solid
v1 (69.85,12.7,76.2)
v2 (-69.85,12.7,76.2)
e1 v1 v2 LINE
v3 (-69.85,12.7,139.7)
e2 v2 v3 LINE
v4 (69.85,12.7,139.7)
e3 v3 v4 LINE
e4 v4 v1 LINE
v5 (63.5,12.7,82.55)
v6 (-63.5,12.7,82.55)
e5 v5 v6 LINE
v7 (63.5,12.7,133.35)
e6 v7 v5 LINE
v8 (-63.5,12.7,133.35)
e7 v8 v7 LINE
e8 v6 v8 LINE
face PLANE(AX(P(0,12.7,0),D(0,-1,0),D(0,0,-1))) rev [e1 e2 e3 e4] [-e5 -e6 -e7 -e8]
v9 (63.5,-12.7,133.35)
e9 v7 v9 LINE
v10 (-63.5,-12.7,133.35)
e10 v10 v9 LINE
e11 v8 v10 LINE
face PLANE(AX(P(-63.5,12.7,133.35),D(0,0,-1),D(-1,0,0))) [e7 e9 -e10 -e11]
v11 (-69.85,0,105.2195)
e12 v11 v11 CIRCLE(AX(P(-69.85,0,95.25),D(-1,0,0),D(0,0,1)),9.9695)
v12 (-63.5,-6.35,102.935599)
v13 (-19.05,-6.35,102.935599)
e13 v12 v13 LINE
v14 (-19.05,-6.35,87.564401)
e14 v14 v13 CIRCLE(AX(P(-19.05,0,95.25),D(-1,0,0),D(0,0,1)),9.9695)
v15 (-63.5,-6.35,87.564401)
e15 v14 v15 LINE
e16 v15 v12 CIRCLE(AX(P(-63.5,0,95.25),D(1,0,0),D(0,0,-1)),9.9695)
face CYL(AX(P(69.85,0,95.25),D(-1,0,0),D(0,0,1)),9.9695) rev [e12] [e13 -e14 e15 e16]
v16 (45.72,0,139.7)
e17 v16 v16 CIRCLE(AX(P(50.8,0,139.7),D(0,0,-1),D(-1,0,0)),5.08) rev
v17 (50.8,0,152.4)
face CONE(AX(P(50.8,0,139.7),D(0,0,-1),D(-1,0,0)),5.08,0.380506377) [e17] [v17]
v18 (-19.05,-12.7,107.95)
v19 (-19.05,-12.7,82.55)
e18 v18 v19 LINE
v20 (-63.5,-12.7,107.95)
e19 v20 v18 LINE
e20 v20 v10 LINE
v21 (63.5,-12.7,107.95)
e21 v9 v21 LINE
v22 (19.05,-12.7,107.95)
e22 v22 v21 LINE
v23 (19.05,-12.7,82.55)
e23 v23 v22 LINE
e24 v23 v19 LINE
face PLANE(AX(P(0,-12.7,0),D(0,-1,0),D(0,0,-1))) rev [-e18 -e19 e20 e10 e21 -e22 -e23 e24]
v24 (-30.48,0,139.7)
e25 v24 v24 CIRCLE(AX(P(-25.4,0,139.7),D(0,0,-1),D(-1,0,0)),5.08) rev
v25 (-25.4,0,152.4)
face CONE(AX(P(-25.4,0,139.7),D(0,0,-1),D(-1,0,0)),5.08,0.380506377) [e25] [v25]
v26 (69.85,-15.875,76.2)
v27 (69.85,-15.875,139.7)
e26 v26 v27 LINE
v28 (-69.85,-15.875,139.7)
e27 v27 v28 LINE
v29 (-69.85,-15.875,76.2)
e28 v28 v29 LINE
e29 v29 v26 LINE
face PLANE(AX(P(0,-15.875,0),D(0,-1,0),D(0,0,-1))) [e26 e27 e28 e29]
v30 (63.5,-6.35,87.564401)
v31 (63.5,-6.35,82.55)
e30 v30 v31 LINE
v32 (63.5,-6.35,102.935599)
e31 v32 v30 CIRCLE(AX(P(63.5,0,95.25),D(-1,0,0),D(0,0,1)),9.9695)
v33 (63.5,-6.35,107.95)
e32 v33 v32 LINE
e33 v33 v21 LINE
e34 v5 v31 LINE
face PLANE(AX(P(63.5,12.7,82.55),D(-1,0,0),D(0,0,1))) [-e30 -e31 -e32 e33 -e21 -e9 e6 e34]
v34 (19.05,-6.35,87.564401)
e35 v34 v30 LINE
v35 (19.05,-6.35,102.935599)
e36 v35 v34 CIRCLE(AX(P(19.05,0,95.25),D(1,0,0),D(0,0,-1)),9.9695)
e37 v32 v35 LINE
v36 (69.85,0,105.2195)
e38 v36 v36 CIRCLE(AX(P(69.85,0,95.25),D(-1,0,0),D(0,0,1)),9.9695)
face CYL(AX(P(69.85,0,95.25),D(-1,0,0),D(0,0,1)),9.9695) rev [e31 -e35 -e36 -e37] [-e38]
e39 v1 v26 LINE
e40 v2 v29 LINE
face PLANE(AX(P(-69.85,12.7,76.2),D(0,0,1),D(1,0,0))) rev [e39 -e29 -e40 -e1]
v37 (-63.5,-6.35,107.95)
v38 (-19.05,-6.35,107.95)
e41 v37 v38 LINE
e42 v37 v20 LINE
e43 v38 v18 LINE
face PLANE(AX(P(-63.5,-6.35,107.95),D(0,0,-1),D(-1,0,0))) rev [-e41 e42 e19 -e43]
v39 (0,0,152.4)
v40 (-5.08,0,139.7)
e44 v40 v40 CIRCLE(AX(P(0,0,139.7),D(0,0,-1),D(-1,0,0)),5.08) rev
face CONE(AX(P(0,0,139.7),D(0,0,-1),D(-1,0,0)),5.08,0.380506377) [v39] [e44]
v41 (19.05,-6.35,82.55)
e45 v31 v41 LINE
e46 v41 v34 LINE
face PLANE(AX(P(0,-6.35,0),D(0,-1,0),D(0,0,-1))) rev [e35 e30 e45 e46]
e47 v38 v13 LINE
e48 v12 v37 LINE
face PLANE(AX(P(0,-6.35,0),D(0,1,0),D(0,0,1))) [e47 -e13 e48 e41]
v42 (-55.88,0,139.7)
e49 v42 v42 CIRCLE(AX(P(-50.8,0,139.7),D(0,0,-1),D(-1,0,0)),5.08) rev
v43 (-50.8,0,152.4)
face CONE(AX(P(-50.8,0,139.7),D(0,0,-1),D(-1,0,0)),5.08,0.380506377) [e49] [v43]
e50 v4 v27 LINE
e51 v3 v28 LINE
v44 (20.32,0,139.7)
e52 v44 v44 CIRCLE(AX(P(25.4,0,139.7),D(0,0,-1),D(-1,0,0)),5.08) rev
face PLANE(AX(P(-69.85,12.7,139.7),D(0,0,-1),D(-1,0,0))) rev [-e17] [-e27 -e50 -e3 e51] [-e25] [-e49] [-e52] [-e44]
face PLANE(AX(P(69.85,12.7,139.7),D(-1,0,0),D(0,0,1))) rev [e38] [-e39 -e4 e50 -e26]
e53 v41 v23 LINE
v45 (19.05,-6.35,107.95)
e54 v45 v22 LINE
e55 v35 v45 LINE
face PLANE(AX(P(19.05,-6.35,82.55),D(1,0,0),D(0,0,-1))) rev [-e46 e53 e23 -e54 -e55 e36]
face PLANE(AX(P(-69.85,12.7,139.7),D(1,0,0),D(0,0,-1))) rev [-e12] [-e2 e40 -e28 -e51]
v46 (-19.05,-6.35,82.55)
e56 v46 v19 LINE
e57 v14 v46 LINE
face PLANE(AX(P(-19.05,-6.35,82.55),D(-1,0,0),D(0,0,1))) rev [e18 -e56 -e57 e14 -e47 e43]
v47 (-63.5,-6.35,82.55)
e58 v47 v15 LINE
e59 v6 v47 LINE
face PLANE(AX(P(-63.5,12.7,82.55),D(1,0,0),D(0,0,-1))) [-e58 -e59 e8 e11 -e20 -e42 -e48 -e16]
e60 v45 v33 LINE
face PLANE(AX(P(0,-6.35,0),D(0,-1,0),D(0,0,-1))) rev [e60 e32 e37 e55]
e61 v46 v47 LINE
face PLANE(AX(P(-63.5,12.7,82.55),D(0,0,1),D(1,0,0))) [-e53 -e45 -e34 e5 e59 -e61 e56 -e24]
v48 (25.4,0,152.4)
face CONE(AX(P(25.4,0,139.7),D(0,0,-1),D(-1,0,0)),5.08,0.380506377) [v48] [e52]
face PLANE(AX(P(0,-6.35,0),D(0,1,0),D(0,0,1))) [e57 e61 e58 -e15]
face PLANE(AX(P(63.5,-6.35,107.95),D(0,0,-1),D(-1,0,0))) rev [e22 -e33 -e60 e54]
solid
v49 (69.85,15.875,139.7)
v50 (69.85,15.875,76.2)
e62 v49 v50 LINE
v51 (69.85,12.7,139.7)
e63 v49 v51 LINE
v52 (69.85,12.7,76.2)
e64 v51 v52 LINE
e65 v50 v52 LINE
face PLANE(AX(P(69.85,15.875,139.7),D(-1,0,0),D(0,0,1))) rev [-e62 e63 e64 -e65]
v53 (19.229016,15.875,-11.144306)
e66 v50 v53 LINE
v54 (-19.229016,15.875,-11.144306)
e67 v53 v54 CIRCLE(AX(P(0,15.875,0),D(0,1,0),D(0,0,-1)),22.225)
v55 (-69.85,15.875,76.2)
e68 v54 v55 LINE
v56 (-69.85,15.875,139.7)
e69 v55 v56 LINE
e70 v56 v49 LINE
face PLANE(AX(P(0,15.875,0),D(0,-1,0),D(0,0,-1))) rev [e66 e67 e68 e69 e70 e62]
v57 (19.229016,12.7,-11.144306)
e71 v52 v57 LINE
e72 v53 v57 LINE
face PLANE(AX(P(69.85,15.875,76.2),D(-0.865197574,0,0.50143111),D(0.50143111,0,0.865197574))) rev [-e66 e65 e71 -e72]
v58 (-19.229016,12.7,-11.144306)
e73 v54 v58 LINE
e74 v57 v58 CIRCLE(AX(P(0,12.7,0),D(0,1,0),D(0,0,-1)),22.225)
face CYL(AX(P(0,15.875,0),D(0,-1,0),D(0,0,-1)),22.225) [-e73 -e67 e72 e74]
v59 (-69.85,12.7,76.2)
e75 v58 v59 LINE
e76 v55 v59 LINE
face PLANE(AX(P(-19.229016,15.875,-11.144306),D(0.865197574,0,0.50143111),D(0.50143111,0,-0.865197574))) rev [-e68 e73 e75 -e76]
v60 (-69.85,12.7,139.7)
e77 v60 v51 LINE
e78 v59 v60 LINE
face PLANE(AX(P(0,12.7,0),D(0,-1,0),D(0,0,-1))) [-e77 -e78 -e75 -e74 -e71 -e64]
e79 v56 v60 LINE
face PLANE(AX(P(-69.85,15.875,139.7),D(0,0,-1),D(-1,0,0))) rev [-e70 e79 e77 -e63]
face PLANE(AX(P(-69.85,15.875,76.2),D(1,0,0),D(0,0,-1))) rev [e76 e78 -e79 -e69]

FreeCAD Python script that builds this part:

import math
import FreeCAD as App
import Part
import Sketcher

V = App.Vector
Q = App.Units.Quantity


def add_polygon(sketch, points):
    """Adds a closed chain of lines whose ends are joined by coincident constraints."""
    first, n = sketch.GeometryCount, len(points)
    for a, b in zip(points, points[1:] + points[:1]):
        sketch.addGeometry(Part.LineSegment(App.Vector(*a, 0), App.Vector(*b, 0)), False)
    for i in range(n):
        sketch.addConstraint(Sketcher.Constraint("Coincident", first + i, 2, first + (i + 1) % n, 1))

doc = App.newDocument("Part")
body = doc.addObject("PartDesign::Body", "Body")

sketch1 = doc.addObject("Sketcher::SketchObject", "Sketch")
body.addObject(sketch1)
sketch1.AttachmentSupport = (doc.XZ_Plane, [""])
sketch1.MapMode = "FlatFace"
add_polygon(sketch1, [(-70, 76), (-70, 140), (70, 140), (70, 76)])
add_polygon(sketch1, [(64, 133), (-64, 133), (-64, 83), (64, 83)])
sketch1.addConstraint(Sketcher.Constraint("Vertical", 0))
sketch1.addConstraint(Sketcher.Constraint("Horizontal", 1))
sketch1.addConstraint(Sketcher.Constraint("Vertical", 2))
sketch1.addConstraint(Sketcher.Constraint("Horizontal", 3))
sketch1.addConstraint(Sketcher.Constraint("Horizontal", 4))
sketch1.addConstraint(Sketcher.Constraint("Vertical", 5))
sketch1.addConstraint(Sketcher.Constraint("Horizontal", 6))
sketch1.addConstraint(Sketcher.Constraint("Vertical", 7))
sketch1.addConstraint(Sketcher.Constraint("DistanceX", 4, 2, 4, 1, Q("5 in")))
sketch1.addConstraint(Sketcher.Constraint("DistanceY", 5, 2, 5, 1, Q("2 in")))
sketch1.addConstraint(Sketcher.Constraint("DistanceX", 1, 1, 1, 2, Q("5.5 in")))
sketch1.addConstraint(Sketcher.Constraint("DistanceY", 0, 1, 0, 2, Q("2.5 in")))
sketch1.addConstraint(Sketcher.Constraint("DistanceY", -1, 1, 2, 2, Q("3 in")))
sketch1.addConstraint(Sketcher.Constraint("DistanceX", 4, 2, -1, 1, Q("2.5 in")))
sketch1.addConstraint(Sketcher.Constraint("DistanceX", 0, 2, -1, 1, Q("2.75 in")))
sketch1.addConstraint(Sketcher.Constraint("DistanceY", -1, 1, 4, 2, Q("5.25 in")))
pad1 = doc.addObject("PartDesign::Pad", "Pad")
body.addObject(pad1)
pad1.Profile = sketch1
pad1.Type = "TwoLengths"
pad1.Length = Q("0.5 in")
pad1.Length2 = Q("0.5 in")
pad1.Reversed = True

sketch2 = doc.addObject("Sketcher::SketchObject", "Sketch001")
body.addObject(sketch2)
sketch2.AttachmentSupport = (doc.XZ_Plane, [""])
sketch2.MapMode = "FlatFace"
sketch2.AttachmentOffset = App.Placement(V(0, 0, 0.5 * 25.4), App.Rotation())
add_polygon(sketch2, [(-70, 140), (-70, 76), (70, 76), (70, 140)])
sketch2.addConstraint(Sketcher.Constraint("Vertical", 0))
sketch2.addConstraint(Sketcher.Constraint("Horizontal", 1))
sketch2.addConstraint(Sketcher.Constraint("Vertical", 2))
sketch2.addConstraint(Sketcher.Constraint("Horizontal", 3))
sketch2.addConstraint(Sketcher.Constraint("DistanceX", 1, 1, 1, 2, Q("5.5 in")))
sketch2.addConstraint(Sketcher.Constraint("DistanceY", 0, 2, 0, 1, Q("2.5 in")))
sketch2.addConstraint(Sketcher.Constraint("DistanceY", -1, 1, 0, 2, Q("3 in")))
sketch2.addConstraint(Sketcher.Constraint("DistanceX", 0, 2, -1, 1, Q("2.75 in")))
pad2 = doc.addObject("PartDesign::Pad", "Pad001")
body.addObject(pad2)
pad2.Profile = sketch2
pad2.Length = Q("0.125 in")

sketch3 = doc.addObject("Sketcher::SketchObject", "Sketch002")
body.addObject(sketch3)
sketch3.AttachmentSupport = (doc.XZ_Plane, [""])
sketch3.MapMode = "FlatFace"
sketch3.AttachmentOffset = App.Placement(V(0, 0, 0.5 * 25.4), App.Rotation())
add_polygon(sketch3, [(-64, 83), (-64, 108), (-19, 108), (-19, 83)])
add_polygon(sketch3, [(19, 83), (19, 108), (64, 108), (64, 83)])
sketch3.addConstraint(Sketcher.Constraint("Vertical", 0))
sketch3.addConstraint(Sketcher.Constraint("Horizontal", 1))
sketch3.addConstraint(Sketcher.Constraint("Vertical", 2))
sketch3.addConstraint(Sketcher.Constraint("Horizontal", 3))
sketch3.addConstraint(Sketcher.Constraint("Vertical", 4))
sketch3.addConstraint(Sketcher.Constraint("Horizontal", 5))
sketch3.addConstraint(Sketcher.Constraint("Vertical", 6))
sketch3.addConstraint(Sketcher.Constraint("Horizontal", 7))
sketch3.addConstraint(Sketcher.Constraint("Symmetric", 1, 2, 4, 2, -2))
sketch3.addConstraint(Sketcher.Constraint("Symmetric", 3, 2, 6, 2, -2))
sketch3.addConstraint(Sketcher.Constraint("DistanceY", 0, 1, 0, 2, Q("1 in")))
sketch3.addConstraint(Sketcher.Constraint("DistanceX", 0, 2, 5, 2, Q("5 in")))
sketch3.addConstraint(Sketcher.Constraint("DistanceX", 1, 1, 1, 2, Q("1.75 in")))
sketch3.addConstraint(Sketcher.Constraint("DistanceY", -1, 1, 0, 2, Q("4.25 in")))
pad3 = doc.addObject("PartDesign::Pad", "Pad002")
body.addObject(pad3)
pad3.Profile = sketch3
pad3.Length = Q("0.25 in")
pad3.Reversed = True

sketch4 = doc.addObject("Sketcher::SketchObject", "Sketch003")
body.addObject(sketch4)
sketch4.AttachmentSupport = (doc.YZ_Plane, [""])
sketch4.MapMode = "FlatFace"
sketch4.AttachmentOffset = App.Placement(V(0, 0, -2.75 * 25.4), App.Rotation())
sketch4.addGeometry(Part.Circle(V(0, 95, 0), V(0, 0, 1), 10), False)
sketch4.addConstraint(Sketcher.Constraint("PointOnObject", 0, 3, -2))
sketch4.addConstraint(Sketcher.Constraint("Diameter", 0, Q("0.785 in")))
sketch4.addConstraint(Sketcher.Constraint("DistanceY", -1, 1, 0, 3, Q("3.75 in")))
pocket1 = doc.addObject("PartDesign::Pocket", "Pocket")
body.addObject(pocket1)
pocket1.Profile = sketch4
pocket1.Type = "ThroughAll"
pocket1.Reversed = True

sketch5 = doc.addObject("Sketcher::SketchObject", "Sketch004")
body.addObject(sketch5)
sketch5.AttachmentSupport = (doc.YZ_Plane, [""])
sketch5.MapMode = "FlatFace"
add_polygon(sketch5, [(0, 140), (5, 140), (0, 152)])
sketch5.addConstraint(Sketcher.Constraint("Horizontal", 0))
sketch5.addConstraint(Sketcher.Constraint("Vertical", 2))
sketch5.addConstraint(Sketcher.Constraint("PointOnObject", 1, 2, -2))
sketch5.addConstraint(Sketcher.Constraint("DistanceX", 0, 1, 0, 2, Q("0.2 in")))
sketch5.addConstraint(Sketcher.Constraint("DistanceY", 2, 2, 2, 1, Q("0.5 in")))
sketch5.addConstraint(Sketcher.Constraint("DistanceY", -1, 1, 1, 2, Q("6 in")))
revolution = doc.addObject("PartDesign::Revolution", "Revolution")
body.addObject(revolution)
revolution.Profile = sketch5
revolution.ReferenceAxis = (sketch5, ["V_Axis"])
revolution.Angle = 360
doc.recompute()

linearpattern = doc.addObject("PartDesign::LinearPattern", "LinearPattern")
body.addObject(linearpattern)
linearpattern.Originals = [revolution]
linearpattern.Direction = (doc.X_Axis, [""])
linearpattern.Mode = "offset"
linearpattern.Offset = Q("1 in")
linearpattern.Occurrences = 3
linearpattern.Reversed = True
body.Tip = linearpattern
doc.recompute()

linearpattern2 = doc.addObject("PartDesign::LinearPattern", "LinearPattern001")
body.addObject(linearpattern2)
linearpattern2.Originals = [revolution]
linearpattern2.Direction = (doc.X_Axis, [""])
linearpattern2.Mode = "offset"
linearpattern2.Offset = Q("1 in")
linearpattern2.Occurrences = 3
body.Tip = linearpattern2
body2 = doc.addObject("PartDesign::Body", "Body001")

sketch6 = doc.addObject("Sketcher::SketchObject", "Sketch005")
body2.addObject(sketch6)
sketch6.AttachmentSupport = (doc.getObject("XZ_Plane001"), [""])
sketch6.MapMode = "FlatFace"
sketch6.AttachmentOffset = App.Placement(V(0, 0, -0.5 * 25.4), App.Rotation())
sketch6.addGeometry(Part.LineSegment(V(-19, -11, 0), V(-70, 76, 0)), False)
sketch6.addGeometry(Part.LineSegment(V(-70, 76, 0), V(-70, 140, 0)), False)
sketch6.addGeometry(Part.LineSegment(V(-70, 140, 0), V(70, 140, 0)), False)
sketch6.addGeometry(Part.LineSegment(V(70, 140, 0), V(70, 76, 0)), False)
sketch6.addGeometry(Part.LineSegment(V(70, 76, 0), V(19, -11, 0)), False)
sketch6.addGeometry(Part.ArcOfCircle(Part.Circle(V(0, 0, 0), V(0, 0, 1), 22), math.radians(-150), math.radians(-30)), False)
sketch6.addConstraint(Sketcher.Constraint("Coincident", 0, 2, 1, 1))
sketch6.addConstraint(Sketcher.Constraint("Coincident", 1, 2, 2, 1))
sketch6.addConstraint(Sketcher.Constraint("Coincident", 2, 2, 3, 1))
sketch6.addConstraint(Sketcher.Constraint("Coincident", 3, 2, 4, 1))
sketch6.addConstraint(Sketcher.Constraint("Tangent", 4, 2, 5, 2))
sketch6.addConstraint(Sketcher.Constraint("Tangent", 5, 1, 0, 1))
sketch6.addConstraint(Sketcher.Constraint("Vertical", 1))
sketch6.addConstraint(Sketcher.Constraint("Horizontal", 2))
sketch6.addConstraint(Sketcher.Constraint("Vertical", 3))
sketch6.addConstraint(Sketcher.Constraint("Coincident", 5, 3, -1, 1))
sketch6.addConstraint(Sketcher.Constraint("Symmetric", 0, 2, 3, 2, -2))
sketch6.addConstraint(Sketcher.Constraint("DistanceX", 2, 1, 2, 2, Q("5.5 in")))
sketch6.addConstraint(Sketcher.Constraint("DistanceY", 1, 1, 1, 2, Q("2.5 in")))
sketch6.addConstraint(Sketcher.Constraint("DistanceY", -1, 1, 0, 2, Q("3 in")))
sketch6.addConstraint(Sketcher.Constraint("Radius", 5, Q("0.875 in")))
pad4 = doc.addObject("PartDesign::Pad", "Pad003")
body2.addObject(pad4)
pad4.Profile = sketch6
pad4.Length = Q("0.125 in")
pad4.Reversed = True

doc.recompute()
